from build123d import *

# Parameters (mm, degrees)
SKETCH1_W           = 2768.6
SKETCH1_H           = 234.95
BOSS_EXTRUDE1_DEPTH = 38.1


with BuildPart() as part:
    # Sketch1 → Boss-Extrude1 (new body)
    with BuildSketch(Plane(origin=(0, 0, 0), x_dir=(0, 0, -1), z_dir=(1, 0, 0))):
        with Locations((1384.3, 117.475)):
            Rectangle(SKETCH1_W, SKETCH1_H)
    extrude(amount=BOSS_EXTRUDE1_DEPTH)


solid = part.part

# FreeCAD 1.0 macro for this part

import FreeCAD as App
import Part
import Sketcher
from FreeCAD import Vector
Q = App.Units.Quantity

doc = App.newDocument("Part")
body = doc.addObject("PartDesign::Body", "Body")

# Sketch on YZ plane
sketch1 = body.newObject("Sketcher::SketchObject", "Sketch")
sketch1.AttachmentSupport = (doc.getObject("YZ_Plane"), [""])
sketch1.MapMode = "FlatFace"
sketch1.addGeometry([
    Part.LineSegment(Vector(235, 0, 0), Vector(0, 0, 0)),
    Part.LineSegment(Vector(0, 0, 0), Vector(0, -2769, 0)),
    Part.LineSegment(Vector(0, -2769, 0), Vector(235, -2769, 0)),
    Part.LineSegment(Vector(235, -2769, 0), Vector(235, 0, 0)),
], False)
sketch1.addConstraint([
    Sketcher.Constraint("Coincident", 0, 2, 1, 1),
    Sketcher.Constraint("Coincident", 1, 2, 2, 1),
    Sketcher.Constraint("Coincident", 2, 2, 3, 1),
    Sketcher.Constraint("Coincident", 3, 2, 0, 1),
    Sketcher.Constraint("Horizontal", 0),
    Sketcher.Constraint("Vertical", 1),
    Sketcher.Constraint("Horizontal", 2),
    Sketcher.Constraint("Vertical", 3),
    Sketcher.Constraint("Coincident", 0, 2, -1, 1),
    Sketcher.Constraint("DistanceY", 1, 2, 1, 1, Q("109 in")),
    Sketcher.Constraint("DistanceX", 0, 2, 0, 1, Q("9.25 in")),
])
pad1 = body.newObject("PartDesign::Pad", "Pad")
pad1.Profile = sketch1
pad1.Length = Q("1.5 in")

doc.recompute()
